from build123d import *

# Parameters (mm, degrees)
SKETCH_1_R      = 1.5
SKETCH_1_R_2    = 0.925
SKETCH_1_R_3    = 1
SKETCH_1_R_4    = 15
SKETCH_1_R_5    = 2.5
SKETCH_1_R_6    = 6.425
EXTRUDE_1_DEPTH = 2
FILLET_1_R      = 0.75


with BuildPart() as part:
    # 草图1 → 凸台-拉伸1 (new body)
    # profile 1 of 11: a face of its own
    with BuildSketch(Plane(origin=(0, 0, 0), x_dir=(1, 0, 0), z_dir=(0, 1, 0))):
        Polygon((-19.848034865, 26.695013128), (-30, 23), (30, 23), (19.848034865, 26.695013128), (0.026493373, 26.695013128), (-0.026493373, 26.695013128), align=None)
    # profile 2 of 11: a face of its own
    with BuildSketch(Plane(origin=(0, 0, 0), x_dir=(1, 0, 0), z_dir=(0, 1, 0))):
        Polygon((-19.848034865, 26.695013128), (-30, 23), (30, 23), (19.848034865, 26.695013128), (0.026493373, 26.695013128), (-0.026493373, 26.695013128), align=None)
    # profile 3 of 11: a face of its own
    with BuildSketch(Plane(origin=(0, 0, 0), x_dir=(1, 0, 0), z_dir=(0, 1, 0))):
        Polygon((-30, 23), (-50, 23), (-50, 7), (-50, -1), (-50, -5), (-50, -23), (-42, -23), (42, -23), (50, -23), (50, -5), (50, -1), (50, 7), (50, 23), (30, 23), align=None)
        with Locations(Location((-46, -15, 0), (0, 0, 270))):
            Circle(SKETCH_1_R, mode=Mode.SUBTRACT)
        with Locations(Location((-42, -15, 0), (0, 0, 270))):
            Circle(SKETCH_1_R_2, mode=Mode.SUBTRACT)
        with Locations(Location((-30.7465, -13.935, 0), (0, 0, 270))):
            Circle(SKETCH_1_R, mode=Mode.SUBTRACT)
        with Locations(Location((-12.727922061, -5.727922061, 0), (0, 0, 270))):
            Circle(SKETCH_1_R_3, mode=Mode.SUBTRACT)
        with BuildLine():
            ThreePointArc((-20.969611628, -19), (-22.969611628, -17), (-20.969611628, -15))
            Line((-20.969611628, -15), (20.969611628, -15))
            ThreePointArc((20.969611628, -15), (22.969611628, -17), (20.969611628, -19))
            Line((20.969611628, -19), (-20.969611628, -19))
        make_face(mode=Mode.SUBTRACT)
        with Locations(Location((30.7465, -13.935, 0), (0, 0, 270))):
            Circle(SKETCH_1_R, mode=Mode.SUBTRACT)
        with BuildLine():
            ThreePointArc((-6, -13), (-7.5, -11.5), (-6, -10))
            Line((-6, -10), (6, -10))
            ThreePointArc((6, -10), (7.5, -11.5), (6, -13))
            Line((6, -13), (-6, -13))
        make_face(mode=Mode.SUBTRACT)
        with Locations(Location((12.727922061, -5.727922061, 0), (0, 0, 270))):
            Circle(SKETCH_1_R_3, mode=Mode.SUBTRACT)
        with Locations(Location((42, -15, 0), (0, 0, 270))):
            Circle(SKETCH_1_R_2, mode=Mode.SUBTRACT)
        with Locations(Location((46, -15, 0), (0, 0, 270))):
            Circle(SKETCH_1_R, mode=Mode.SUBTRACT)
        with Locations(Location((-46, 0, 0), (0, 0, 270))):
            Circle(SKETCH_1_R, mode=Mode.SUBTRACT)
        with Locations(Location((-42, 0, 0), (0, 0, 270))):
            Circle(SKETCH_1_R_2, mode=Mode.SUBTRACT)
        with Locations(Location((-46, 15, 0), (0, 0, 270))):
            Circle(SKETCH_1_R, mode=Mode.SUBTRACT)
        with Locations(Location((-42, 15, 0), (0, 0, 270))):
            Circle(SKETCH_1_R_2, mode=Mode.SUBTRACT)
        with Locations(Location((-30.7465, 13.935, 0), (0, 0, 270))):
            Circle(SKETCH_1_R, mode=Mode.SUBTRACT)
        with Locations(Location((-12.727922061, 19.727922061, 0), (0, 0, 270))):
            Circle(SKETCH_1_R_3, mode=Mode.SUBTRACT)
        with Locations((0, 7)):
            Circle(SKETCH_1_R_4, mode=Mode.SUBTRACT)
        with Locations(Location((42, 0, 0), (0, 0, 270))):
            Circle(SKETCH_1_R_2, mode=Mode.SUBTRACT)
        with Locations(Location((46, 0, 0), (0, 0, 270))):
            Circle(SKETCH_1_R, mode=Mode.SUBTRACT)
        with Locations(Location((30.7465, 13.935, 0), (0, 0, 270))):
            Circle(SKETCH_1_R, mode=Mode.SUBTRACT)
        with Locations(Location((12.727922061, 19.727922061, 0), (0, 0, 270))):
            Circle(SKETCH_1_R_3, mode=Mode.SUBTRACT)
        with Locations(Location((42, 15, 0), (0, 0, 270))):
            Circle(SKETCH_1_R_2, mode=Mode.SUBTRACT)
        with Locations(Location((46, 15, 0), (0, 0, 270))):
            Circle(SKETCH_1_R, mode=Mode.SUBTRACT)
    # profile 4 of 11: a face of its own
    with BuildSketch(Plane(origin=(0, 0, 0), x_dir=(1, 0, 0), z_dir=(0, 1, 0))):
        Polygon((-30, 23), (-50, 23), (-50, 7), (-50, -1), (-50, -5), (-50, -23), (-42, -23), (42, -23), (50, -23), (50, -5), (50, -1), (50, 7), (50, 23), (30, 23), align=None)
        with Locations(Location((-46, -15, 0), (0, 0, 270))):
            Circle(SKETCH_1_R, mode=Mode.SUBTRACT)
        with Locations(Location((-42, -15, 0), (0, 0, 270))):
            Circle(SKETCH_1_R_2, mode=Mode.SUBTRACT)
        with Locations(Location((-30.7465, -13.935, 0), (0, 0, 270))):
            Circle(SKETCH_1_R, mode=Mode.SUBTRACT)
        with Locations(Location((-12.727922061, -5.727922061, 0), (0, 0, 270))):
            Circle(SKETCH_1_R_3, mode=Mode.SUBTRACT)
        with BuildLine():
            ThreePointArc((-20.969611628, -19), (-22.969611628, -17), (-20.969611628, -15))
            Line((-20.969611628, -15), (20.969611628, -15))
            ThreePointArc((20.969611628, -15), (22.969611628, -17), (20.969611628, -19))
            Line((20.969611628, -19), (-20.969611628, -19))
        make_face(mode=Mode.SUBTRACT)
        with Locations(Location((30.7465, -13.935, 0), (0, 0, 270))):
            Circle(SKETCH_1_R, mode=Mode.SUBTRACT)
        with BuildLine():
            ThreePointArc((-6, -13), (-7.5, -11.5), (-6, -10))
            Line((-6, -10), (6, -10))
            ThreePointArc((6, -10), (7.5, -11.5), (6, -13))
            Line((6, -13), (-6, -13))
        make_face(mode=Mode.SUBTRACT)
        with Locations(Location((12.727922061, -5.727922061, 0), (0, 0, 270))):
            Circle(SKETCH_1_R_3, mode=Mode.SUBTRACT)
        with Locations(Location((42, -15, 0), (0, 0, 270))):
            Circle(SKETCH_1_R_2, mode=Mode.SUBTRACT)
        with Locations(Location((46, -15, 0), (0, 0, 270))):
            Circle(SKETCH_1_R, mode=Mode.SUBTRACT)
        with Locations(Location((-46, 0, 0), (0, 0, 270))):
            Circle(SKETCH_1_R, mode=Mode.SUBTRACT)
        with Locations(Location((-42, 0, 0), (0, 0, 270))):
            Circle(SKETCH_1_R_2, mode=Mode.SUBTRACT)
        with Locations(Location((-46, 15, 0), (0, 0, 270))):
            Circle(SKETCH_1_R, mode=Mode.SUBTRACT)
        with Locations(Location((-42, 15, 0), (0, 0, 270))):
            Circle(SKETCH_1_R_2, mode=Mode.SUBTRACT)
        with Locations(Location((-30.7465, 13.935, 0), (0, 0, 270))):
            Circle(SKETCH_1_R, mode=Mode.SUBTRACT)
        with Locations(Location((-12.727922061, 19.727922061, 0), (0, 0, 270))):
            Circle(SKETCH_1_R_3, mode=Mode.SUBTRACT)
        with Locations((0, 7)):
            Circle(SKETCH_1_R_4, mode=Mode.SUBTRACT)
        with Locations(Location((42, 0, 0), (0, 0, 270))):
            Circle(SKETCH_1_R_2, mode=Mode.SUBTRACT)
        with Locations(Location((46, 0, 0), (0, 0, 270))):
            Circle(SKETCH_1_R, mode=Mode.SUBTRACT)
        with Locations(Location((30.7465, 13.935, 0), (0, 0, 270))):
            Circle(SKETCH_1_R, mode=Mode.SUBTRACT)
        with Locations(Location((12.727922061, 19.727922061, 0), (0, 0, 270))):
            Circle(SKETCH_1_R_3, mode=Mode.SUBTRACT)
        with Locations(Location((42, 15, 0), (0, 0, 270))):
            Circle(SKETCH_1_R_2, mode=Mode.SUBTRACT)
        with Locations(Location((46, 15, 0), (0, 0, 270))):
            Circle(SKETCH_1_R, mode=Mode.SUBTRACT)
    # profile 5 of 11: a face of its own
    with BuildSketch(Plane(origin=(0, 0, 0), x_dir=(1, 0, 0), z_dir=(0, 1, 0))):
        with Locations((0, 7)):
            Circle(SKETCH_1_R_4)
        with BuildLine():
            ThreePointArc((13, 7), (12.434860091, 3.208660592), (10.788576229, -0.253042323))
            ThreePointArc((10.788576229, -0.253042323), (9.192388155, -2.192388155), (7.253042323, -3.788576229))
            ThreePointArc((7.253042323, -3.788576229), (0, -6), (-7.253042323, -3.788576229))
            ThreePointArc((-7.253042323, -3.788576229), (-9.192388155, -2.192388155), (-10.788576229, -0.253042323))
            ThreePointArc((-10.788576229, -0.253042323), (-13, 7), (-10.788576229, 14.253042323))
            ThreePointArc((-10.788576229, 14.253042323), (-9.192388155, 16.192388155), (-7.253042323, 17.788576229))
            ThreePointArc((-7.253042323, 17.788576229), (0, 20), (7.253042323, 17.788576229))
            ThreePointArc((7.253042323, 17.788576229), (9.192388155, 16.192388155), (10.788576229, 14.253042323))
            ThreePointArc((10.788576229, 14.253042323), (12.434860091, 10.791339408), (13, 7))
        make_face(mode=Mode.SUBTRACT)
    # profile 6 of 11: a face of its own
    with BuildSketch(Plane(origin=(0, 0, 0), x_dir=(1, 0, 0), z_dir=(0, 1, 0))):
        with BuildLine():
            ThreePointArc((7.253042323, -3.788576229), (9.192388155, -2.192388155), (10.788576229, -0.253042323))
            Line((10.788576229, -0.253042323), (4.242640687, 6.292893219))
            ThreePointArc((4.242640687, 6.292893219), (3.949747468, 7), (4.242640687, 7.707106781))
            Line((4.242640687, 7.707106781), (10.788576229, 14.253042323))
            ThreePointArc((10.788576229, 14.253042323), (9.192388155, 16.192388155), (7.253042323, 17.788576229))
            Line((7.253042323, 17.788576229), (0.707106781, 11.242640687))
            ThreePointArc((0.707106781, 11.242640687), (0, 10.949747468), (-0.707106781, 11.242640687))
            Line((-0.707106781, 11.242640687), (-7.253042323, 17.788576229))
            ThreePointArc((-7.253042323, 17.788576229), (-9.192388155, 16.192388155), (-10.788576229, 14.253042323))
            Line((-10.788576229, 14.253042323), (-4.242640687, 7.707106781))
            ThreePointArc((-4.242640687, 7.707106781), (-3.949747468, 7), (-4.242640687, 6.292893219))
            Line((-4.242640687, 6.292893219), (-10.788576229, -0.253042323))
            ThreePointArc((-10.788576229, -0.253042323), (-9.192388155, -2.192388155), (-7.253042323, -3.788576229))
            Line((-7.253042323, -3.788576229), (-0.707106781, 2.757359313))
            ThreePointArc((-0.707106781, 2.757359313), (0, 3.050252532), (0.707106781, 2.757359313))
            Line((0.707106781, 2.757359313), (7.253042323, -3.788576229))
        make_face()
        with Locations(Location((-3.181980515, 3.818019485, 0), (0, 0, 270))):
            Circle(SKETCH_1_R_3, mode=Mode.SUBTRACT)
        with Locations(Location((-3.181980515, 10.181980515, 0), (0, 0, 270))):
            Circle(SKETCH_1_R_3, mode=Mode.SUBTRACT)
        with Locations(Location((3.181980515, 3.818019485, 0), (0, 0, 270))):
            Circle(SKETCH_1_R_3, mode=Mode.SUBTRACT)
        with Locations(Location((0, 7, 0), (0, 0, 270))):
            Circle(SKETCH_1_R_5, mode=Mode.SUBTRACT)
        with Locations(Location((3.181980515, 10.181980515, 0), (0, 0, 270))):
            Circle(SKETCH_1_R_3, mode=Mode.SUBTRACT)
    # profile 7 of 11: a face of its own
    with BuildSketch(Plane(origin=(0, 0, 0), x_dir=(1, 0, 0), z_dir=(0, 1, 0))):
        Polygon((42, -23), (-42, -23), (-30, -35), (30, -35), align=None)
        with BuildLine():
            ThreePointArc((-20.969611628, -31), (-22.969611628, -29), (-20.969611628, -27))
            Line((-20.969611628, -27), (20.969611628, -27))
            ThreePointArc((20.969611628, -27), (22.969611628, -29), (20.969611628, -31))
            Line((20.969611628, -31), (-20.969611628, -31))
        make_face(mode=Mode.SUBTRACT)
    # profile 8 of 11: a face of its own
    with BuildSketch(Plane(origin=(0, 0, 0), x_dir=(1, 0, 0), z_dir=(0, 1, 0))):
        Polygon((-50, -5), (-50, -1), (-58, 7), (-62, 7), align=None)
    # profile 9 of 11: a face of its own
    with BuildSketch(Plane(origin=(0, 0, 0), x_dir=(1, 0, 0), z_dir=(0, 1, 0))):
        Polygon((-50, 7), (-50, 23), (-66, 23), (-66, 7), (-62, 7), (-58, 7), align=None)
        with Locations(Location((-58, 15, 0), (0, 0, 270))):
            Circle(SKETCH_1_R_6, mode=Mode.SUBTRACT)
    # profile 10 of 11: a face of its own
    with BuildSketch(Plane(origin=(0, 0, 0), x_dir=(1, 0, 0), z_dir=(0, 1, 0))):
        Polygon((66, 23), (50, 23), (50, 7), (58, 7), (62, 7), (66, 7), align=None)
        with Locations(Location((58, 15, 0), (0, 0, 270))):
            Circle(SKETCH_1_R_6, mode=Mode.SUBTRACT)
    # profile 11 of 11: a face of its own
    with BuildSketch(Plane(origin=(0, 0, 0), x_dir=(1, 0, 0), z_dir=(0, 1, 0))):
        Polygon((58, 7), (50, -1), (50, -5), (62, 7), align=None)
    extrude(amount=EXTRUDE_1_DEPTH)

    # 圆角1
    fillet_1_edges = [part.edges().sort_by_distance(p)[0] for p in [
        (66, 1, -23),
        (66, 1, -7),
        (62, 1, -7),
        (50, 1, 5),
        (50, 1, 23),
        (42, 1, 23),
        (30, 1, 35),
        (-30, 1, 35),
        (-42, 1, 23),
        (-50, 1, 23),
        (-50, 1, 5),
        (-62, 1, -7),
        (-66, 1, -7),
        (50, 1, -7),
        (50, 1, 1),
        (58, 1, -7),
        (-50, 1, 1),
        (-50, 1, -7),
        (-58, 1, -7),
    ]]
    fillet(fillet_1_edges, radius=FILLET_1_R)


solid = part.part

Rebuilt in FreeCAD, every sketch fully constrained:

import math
import FreeCAD as App
import Part
import Sketcher

V = App.Vector
Q = App.Units.Quantity


def edges_at(feature, points):
    """Names of the edges that pass closest to the given points."""
    edges = feature.Shape.Edges
    near = lambda p: min(range(len(edges)), key=lambda i: edges[i].distToShape(Part.Vertex(*p))[0])
    return sorted({f"Edge{near(p) + 1}" for p in points})

doc = App.newDocument("Part")
body = doc.addObject("PartDesign::Body", "Body")

sketch1 = body.newObject("Sketcher::SketchObject", "Sketch")
sketch1.AttachmentSupport = (doc.getObject("XZ_Plane"), [""])
sketch1.MapMode = "FlatFace"
sketch1.addGeometry(Part.LineSegment(V(-19.8, -26.7, 0), V(-30, -23, 0)), False)
sketch1.addGeometry(Part.LineSegment(V(-30, -23, 0), V(-66, -23, 0)), False)
sketch1.addGeometry(Part.LineSegment(V(-66, -23, 0), V(-66, -7, 0)), False)
sketch1.addGeometry(Part.LineSegment(V(-66, -7, 0), V(-62, -7, 0)), False)
sketch1.addGeometry(Part.LineSegment(V(-62, -7, 0), V(-50, 5, 0)), False)
sketch1.addGeometry(Part.LineSegment(V(-50, 5, 0), V(-50, 23, 0)), False)
sketch1.addGeometry(Part.LineSegment(V(-50, 23, 0), V(-42, 23, 0)), False)
sketch1.addGeometry(Part.LineSegment(V(-42, 23, 0), V(-30, 35, 0)), False)
sketch1.addGeometry(Part.LineSegment(V(-30, 35, 0), V(30, 35, 0)), False)
sketch1.addGeometry(Part.LineSegment(V(30, 35, 0), V(42, 23, 0)), False)
sketch1.addGeometry(Part.LineSegment(V(42, 23, 0), V(50, 23, 0)), False)
sketch1.addGeometry(Part.LineSegment(V(50, 23, 0), V(50, 5, 0)), False)
sketch1.addGeometry(Part.LineSegment(V(50, 5, 0), V(62, -7, 0)), False)
sketch1.addGeometry(Part.LineSegment(V(62, -7, 0), V(66, -7, 0)), False)
sketch1.addGeometry(Part.LineSegment(V(66, -7, 0), V(66, -23, 0)), False)
sketch1.addGeometry(Part.LineSegment(V(66, -23, 0), V(30, -23, 0)), False)
sketch1.addGeometry(Part.LineSegment(V(30, -23, 0), V(19.8, -26.7, 0)), False)
sketch1.addGeometry(Part.LineSegment(V(19.8, -26.7, 0), V(-19.8, -26.7, 0)), False)
sketch1.addGeometry(Part.LineSegment(V(-50, -7, 0), V(-50, 1, 0)), False)
sketch1.addGeometry(Part.LineSegment(V(-50, 1, 0), V(-58, -7, 0)), False)
sketch1.addGeometry(Part.LineSegment(V(-58, -7, 0), V(-50, -7, 0)), False)
sketch1.addGeometry(Part.Circle(V(46, -15, 0), V(0, 0, 1), 1.5), False)
sketch1.addGeometry(Part.LineSegment(V(50, 1, 0), V(50, -7, 0)), False)
sketch1.addGeometry(Part.LineSegment(V(50, -7, 0), V(58, -7, 0)), False)
sketch1.addGeometry(Part.LineSegment(V(58, -7, 0), V(50, 1, 0)), False)
sketch1.addGeometry(Part.Circle(V(-46, 15, 0), V(0, 0, 1), 1.5), False)
sketch1.addGeometry(Part.Circle(V(-42, 15, 0), V(0, 0, 1), 0.9), False)
sketch1.addGeometry(Part.Circle(V(-30.7, 13.9, 0), V(0, 0, 1), 1.5), False)
sketch1.addGeometry(Part.Circle(V(-46, 0, 0), V(0, 0, 1), 1.5), False)
sketch1.addGeometry(Part.Circle(V(-42, 0, 0), V(0, 0, 1), 0.9), False)
sketch1.addGeometry(Part.Circle(V(-12.7, 5.7, 0), V(0, 0, 1), 1), False)
sketch1.addGeometry(Part.LineSegment(V(21, 19, 0), V(-21, 19, 0)), False)
sketch1.addGeometry(Part.ArcOfCircle(Part.Circle(V(-21, 17, 0), V(0, 0, 1), 2), math.radians(90), math.radians(270)), False)
sketch1.addGeometry(Part.LineSegment(V(-21, 15, 0), V(21, 15, 0)), False)
sketch1.addGeometry(Part.ArcOfCircle(Part.Circle(V(21, 17, 0), V(0, 0, 1), 2), math.radians(-90), math.radians(90)), False)
sketch1.addGeometry(Part.LineSegment(V(6, 13, 0), V(-6, 13, 0)), False)
sketch1.addGeometry(Part.ArcOfCircle(Part.Circle(V(-6, 11.5, 0), V(0, 0, 1), 1.5), math.radians(90), math.radians(270)), False)
sketch1.addGeometry(Part.LineSegment(V(-6, 10, 0), V(6, 10, 0)), False)
sketch1.addGeometry(Part.ArcOfCircle(Part.Circle(V(6, 11.5, 0), V(0, 0, 1), 1.5), math.radians(-90), math.radians(90)), False)
sketch1.addGeometry(Part.Circle(V(30.7, 13.9, 0), V(0, 0, 1), 1.5), False)
sketch1.addGeometry(Part.Circle(V(42, 15, 0), V(0, 0, 1), 0.9), False)
sketch1.addGeometry(Part.Circle(V(46, 15, 0), V(0, 0, 1), 1.5), False)
sketch1.addGeometry(Part.Circle(V(12.7, 5.7, 0), V(0, 0, 1), 1), False)
sketch1.addGeometry(Part.Circle(V(42, 0, 0), V(0, 0, 1), 0.9), False)
sketch1.addGeometry(Part.Circle(V(46, 0, 0), V(0, 0, 1), 1.5), False)
sketch1.addGeometry(Part.Circle(V(-46, -15, 0), V(0, 0, 1), 1.5), False)
sketch1.addGeometry(Part.Circle(V(-42, -15, 0), V(0, 0, 1), 0.9), False)
sketch1.addGeometry(Part.Circle(V(-30.7, -13.9, 0), V(0, 0, 1), 1.5), False)
sketch1.addGeometry(Part.Circle(V(-12.7, -19.7, 0), V(0, 0, 1), 1), False)
sketch1.addGeometry(Part.Circle(V(12.7, -19.7, 0), V(0, 0, 1), 1), False)
sketch1.addGeometry(Part.Circle(V(30.7, -13.9, 0), V(0, 0, 1), 1.5), False)
sketch1.addGeometry(Part.Circle(V(42, -15, 0), V(0, 0, 1), 0.9), False)
sketch1.addGeometry(Part.Circle(V(-58, -15, 0), V(0, 0, 1), 6.4), False)
sketch1.addGeometry(Part.ArcOfCircle(Part.Circle(V(-21, 29, 0), V(0, 0, 1), 2), math.radians(90), math.radians(270)), False)
sketch1.addGeometry(Part.LineSegment(V(-21, 27, 0), V(21, 27, 0)), False)
sketch1.addGeometry(Part.ArcOfCircle(Part.Circle(V(21, 29, 0), V(0, 0, 1), 2), math.radians(-90), math.radians(90)), False)
sketch1.addGeometry(Part.LineSegment(V(21, 31, 0), V(-21, 31, 0)), False)
sketch1.addGeometry(Part.Circle(V(58, -15, 0), V(0, 0, 1), 6.4), False)
sketch1.addGeometry(Part.ArcOfCircle(Part.Circle(V(0, -7, 0), V(0, 0, 1), 13), math.radians(0), math.radians(34)), False)
sketch1.addGeometry(Part.LineSegment(V(10.8, 0.3, 0), V(4.2, -6.3, 0)), False)
sketch1.addGeometry(Part.ArcOfCircle(Part.Circle(V(4.9, -7, 0), V(0, 0, 1), 1), math.radians(135), math.radians(225)), False)
sketch1.addGeometry(Part.LineSegment(V(4.2, -7.7, 0), V(10.8, -14.3, 0)), False)
sketch1.addGeometry(Part.ArcOfCircle(Part.Circle(V(0, -7, 0), V(0, 0, 1), 13), math.radians(-34), math.radians(0)), False)
sketch1.addGeometry(Part.ArcOfCircle(Part.Circle(V(0, -7, 0), V(0, 0, 1), 13), math.radians(-124), math.radians(-56)), False)
sketch1.addGeometry(Part.LineSegment(V(7.3, -17.8, 0), V(0.7, -11.2, 0)), False)
sketch1.addGeometry(Part.ArcOfCircle(Part.Circle(V(0, -11.9, 0), V(0, 0, 1), 1), math.radians(45), math.radians(135)), False)
sketch1.addGeometry(Part.LineSegment(V(-0.7, -11.2, 0), V(-7.3, -17.8, 0)), False)
sketch1.addGeometry(Part.ArcOfCircle(Part.Circle(V(0, -7, 0), V(0, 0, 1), 13), math.radians(146), math.radians(214)), False)
sketch1.addGeometry(Part.LineSegment(V(-10.8, -14.3, 0), V(-4.2, -7.7, 0)), False)
sketch1.addGeometry(Part.ArcOfCircle(Part.Circle(V(-4.9, -7, 0), V(0, 0, 1), 1), math.radians(-45), math.radians(45)), False)
sketch1.addGeometry(Part.LineSegment(V(-4.2, -6.3, 0), V(-10.8, 0.3, 0)), False)
sketch1.addGeometry(Part.ArcOfCircle(Part.Circle(V(0, -7, 0), V(0, 0, 1), 13), math.radians(56), math.radians(124)), False)
sketch1.addGeometry(Part.LineSegment(V(-7.3, 3.8, 0), V(-0.7, -2.8, 0)), False)
sketch1.addGeometry(Part.ArcOfCircle(Part.Circle(V(0, -2.1, 0), V(0, 0, 1), 1), math.radians(-135), math.radians(-45)), False)
sketch1.addGeometry(Part.LineSegment(V(0.7, -2.8, 0), V(7.3, 3.8, 0)), False)
sketch1.addGeometry(Part.Circle(V(3.2, -3.8, 0), V(0, 0, 1), 1), False)
sketch1.addGeometry(Part.Circle(V(-3.2, -10.2, 0), V(0, 0, 1), 1), False)
sketch1.addGeometry(Part.Circle(V(3.2, -10.2, 0), V(0, 0, 1), 1), False)
sketch1.addGeometry(Part.Circle(V(0, -7, 0), V(0, 0, 1), 2.5), False)
sketch1.addGeometry(Part.Circle(V(-3.2, -3.8, 0), V(0, 0, 1), 1), False)
sketch1.addConstraint(Sketcher.Constraint("Coincident", 0, 2, 1, 1))
sketch1.addConstraint(Sketcher.Constraint("Coincident", 1, 2, 2, 1))
sketch1.addConstraint(Sketcher.Constraint("Coincident", 2, 2, 3, 1))
sketch1.addConstraint(Sketcher.Constraint("Coincident", 3, 2, 4, 1))
sketch1.addConstraint(Sketcher.Constraint("Coincident", 4, 2, 5, 1))
sketch1.addConstraint(Sketcher.Constraint("Coincident", 5, 2, 6, 1))
sketch1.addConstraint(Sketcher.Constraint("Coincident", 6, 2, 7, 1))
sketch1.addConstraint(Sketcher.Constraint("Coincident", 7, 2, 8, 1))
sketch1.addConstraint(Sketcher.Constraint("Coincident", 8, 2, 9, 1))
sketch1.addConstraint(Sketcher.Constraint("Coincident", 9, 2, 10, 1))
sketch1.addConstraint(Sketcher.Constraint("Coincident", 10, 2, 11, 1))
sketch1.addConstraint(Sketcher.Constraint("Coincident", 11, 2, 12, 1))
sketch1.addConstraint(Sketcher.Constraint("Coincident", 12, 2, 13, 1))
sketch1.addConstraint(Sketcher.Constraint("Coincident", 13, 2, 14, 1))
sketch1.addConstraint(Sketcher.Constraint("Coincident", 14, 2, 15, 1))
sketch1.addConstraint(Sketcher.Constraint("Coincident", 15, 2, 16, 1))
sketch1.addConstraint(Sketcher.Constraint("Coincident", 16, 2, 17, 1))
sketch1.addConstraint(Sketcher.Constraint("Coincident", 17, 2, 0, 1))
sketch1.addConstraint(Sketcher.Constraint("Coincident", 18, 2, 19, 1))
sketch1.addConstraint(Sketcher.Constraint("Coincident", 19, 2, 20, 1))
sketch1.addConstraint(Sketcher.Constraint("Coincident", 20, 2, 18, 1))
sketch1.addConstraint(Sketcher.Constraint("Coincident", 22, 2, 23, 1))
sketch1.addConstraint(Sketcher.Constraint("Coincident", 23, 2, 24, 1))
sketch1.addConstraint(Sketcher.Constraint("Coincident", 24, 2, 22, 1))
sketch1.addConstraint(Sketcher.Constraint("Tangent", 31, 2, 32, 1))
sketch1.addConstraint(Sketcher.Constraint("Tangent", 32, 2, 33, 1))
sketch1.addConstraint(Sketcher.Constraint("Tangent", 33, 2, 34, 1))
sketch1.addConstraint(Sketcher.Constraint("Tangent", 34, 2, 31, 1))
sketch1.addConstraint(Sketcher.Constraint("Tangent", 35, 2, 36, 1))
sketch1.addConstraint(Sketcher.Constraint("Tangent", 36, 2, 37, 1))
sketch1.addConstraint(Sketcher.Constraint("Tangent", 37, 2, 38, 1))
sketch1.addConstraint(Sketcher.Constraint("Tangent", 38, 2, 35, 1))
sketch1.addConstraint(Sketcher.Constraint("Tangent", 53, 2, 54, 1))
sketch1.addConstraint(Sketcher.Constraint("Tangent", 54, 2, 55, 1))
sketch1.addConstraint(Sketcher.Constraint("Tangent", 55, 2, 56, 1))
sketch1.addConstraint(Sketcher.Constraint("Tangent", 56, 2, 53, 1))
sketch1.addConstraint(Sketcher.Constraint("Coincident", 58, 2, 59, 1))
sketch1.addConstraint(Sketcher.Constraint("Tangent", 59, 2, 60, 1))
sketch1.addConstraint(Sketcher.Constraint("Tangent", 60, 2, 61, 1))
sketch1.addConstraint(Sketcher.Constraint("Coincident", 61, 2, 62, 1))
sketch1.addConstraint(Sketcher.Constraint("Tangent", 62, 2, 58, 1))
sketch1.addConstraint(Sketcher.Constraint("Coincident", 63, 2, 64, 1))
sketch1.addConstraint(Sketcher.Constraint("Tangent", 64, 2, 65, 1))
sketch1.addConstraint(Sketcher.Constraint("Tangent", 65, 2, 66, 1))
sketch1.addConstraint(Sketcher.Constraint("Coincident", 66, 2, 63, 1))
sketch1.addConstraint(Sketcher.Constraint("Coincident", 67, 2, 68, 1))
sketch1.addConstraint(Sketcher.Constraint("Tangent", 68, 2, 69, 1))
sketch1.addConstraint(Sketcher.Constraint("Tangent", 69, 2, 70, 1))
sketch1.addConstraint(Sketcher.Constraint("Coincident", 70, 2, 67, 1))
sketch1.addConstraint(Sketcher.Constraint("Coincident", 71, 2, 72, 1))
sketch1.addConstraint(Sketcher.Constraint("Tangent", 72, 2, 73, 1))
sketch1.addConstraint(Sketcher.Constraint("Tangent", 73, 2, 74, 1))
sketch1.addConstraint(Sketcher.Constraint("Coincident", 74, 2, 71, 1))
sketch1.addConstraint(Sketcher.Constraint("Horizontal", 1))
sketch1.addConstraint(Sketcher.Constraint("Vertical", 2))
sketch1.addConstraint(Sketcher.Constraint("Horizontal", 3))
sketch1.addConstraint(Sketcher.Constraint("Vertical", 5))
sketch1.addConstraint(Sketcher.Constraint("Horizontal", 6))
sketch1.addConstraint(Sketcher.Constraint("Horizontal", 8))
sketch1.addConstraint(Sketcher.Constraint("Horizontal", 10))
sketch1.addConstraint(Sketcher.Constraint("Vertical", 11))
sketch1.addConstraint(Sketcher.Constraint("Horizontal", 13))
sketch1.addConstraint(Sketcher.Constraint("Vertical", 14))
sketch1.addConstraint(Sketcher.Constraint("Horizontal", 15))
sketch1.addConstraint(Sketcher.Constraint("Horizontal", 17))
sketch1.addConstraint(Sketcher.Constraint("Vertical", 18))
sketch1.addConstraint(Sketcher.Constraint("Horizontal", 20))
sketch1.addConstraint(Sketcher.Constraint("Vertical", 22))
sketch1.addConstraint(Sketcher.Constraint("Horizontal", 23))
sketch1.addConstraint(Sketcher.Constraint("Horizontal", 31))
sketch1.addConstraint(Sketcher.Constraint("Horizontal", 33))
sketch1.addConstraint(Sketcher.Constraint("Horizontal", 35))
sketch1.addConstraint(Sketcher.Constraint("Horizontal", 37))
sketch1.addConstraint(Sketcher.Constraint("Horizontal", 54))
sketch1.addConstraint(Sketcher.Constraint("Horizontal", 56))
sketch1.addConstraint(Sketcher.Constraint("Coincident", 63, 3, 58, 3))
sketch1.addConstraint(Sketcher.Constraint("Coincident", 67, 3, 58, 3))
sketch1.addConstraint(Sketcher.Constraint("Coincident", 71, 3, 58, 3))
sketch1.addConstraint(Sketcher.Constraint("Coincident", 78, 3, 58, 3))
sketch1.addConstraint(Sketcher.Constraint("Equal", 21, 25))
sketch1.addConstraint(Sketcher.Constraint("Equal", 25, 27))
sketch1.addConstraint(Sketcher.Constraint("Equal", 27, 28))
sketch1.addConstraint(Sketcher.Constraint("Equal", 26, 29))
sketch1.addConstraint(Sketcher.Constraint("Equal", 28, 36))
sketch1.addConstraint(Sketcher.Constraint("Equal", 38, 39))
sketch1.addConstraint(Sketcher.Constraint("Equal", 29, 40))
sketch1.addConstraint(Sketcher.Constraint("Equal", 39, 41))
sketch1.addConstraint(Sketcher.Constraint("Equal", 30, 42))
sketch1.addConstraint(Sketcher.Constraint("Equal", 40, 43))
sketch1.addConstraint(Sketcher.Constraint("Equal", 41, 44))
sketch1.addConstraint(Sketcher.Constraint("Equal", 44, 45))
sketch1.addConstraint(Sketcher.Constraint("Equal", 43, 46))
sketch1.addConstraint(Sketcher.Constraint("Equal", 45, 47))
sketch1.addConstraint(Sketcher.Constraint("Equal", 42, 48))
sketch1.addConstraint(Sketcher.Constraint("Equal", 48, 49))
sketch1.addConstraint(Sketcher.Constraint("Equal", 47, 50))
sketch1.addConstraint(Sketcher.Constraint("Equal", 46, 51))
sketch1.addConstraint(Sketcher.Constraint("Equal", 34, 53))
sketch1.addConstraint(Sketcher.Constraint("Equal", 52, 57))
sketch1.addConstraint(Sketcher.Constraint("Equal", 49, 60))
sketch1.addConstraint(Sketcher.Constraint("Equal", 58, 62))
sketch1.addConstraint(Sketcher.Constraint("Equal", 62, 63))
sketch1.addConstraint(Sketcher.Constraint("Equal", 60, 65))
sketch1.addConstraint(Sketcher.Constraint("Equal", 63, 67))
sketch1.addConstraint(Sketcher.Constraint("Equal", 65, 69))
sketch1.addConstraint(Sketcher.Constraint("Equal", 67, 71))
sketch1.addConstraint(Sketcher.Constraint("Equal", 69, 73))
sketch1.addConstraint(Sketcher.Constraint("Equal", 73, 75))
sketch1.addConstraint(Sketcher.Constraint("Equal", 75, 76))
sketch1.addConstraint(Sketcher.Constraint("Equal", 76, 77))
sketch1.addConstraint(Sketcher.Constraint("Equal", 77, 79))
sketch1.addConstraint(Sketcher.Constraint("Symmetric", 21, 3, 25, 3, -1, 1))
sketch1.addConstraint(Sketcher.Constraint("Symmetric", 29, 3, 43, 3, -1, 1))
sketch1.addConstraint(Sketcher.Constraint("Symmetric", 28, 3, 44, 3, -1, 1))
sketch1.addConstraint(Sketcher.Constraint("Symmetric", 41, 3, 45, 3, -1, 1))
sketch1.addConstraint(Sketcher.Constraint("Symmetric", 40, 3, 46, 3, -1, 1))
sketch1.addConstraint(Sketcher.Constraint("Symmetric", 39, 3, 47, 3, -1, 1))
sketch1.addConstraint(Sketcher.Constraint("Symmetric", 27, 3, 50, 3, -1, 1))
sketch1.addConstraint(Sketcher.Constraint("Symmetric", 26, 3, 51, 3, -1, 1))
sketch1.addConstraint(Sketcher.Constraint("Symmetric", 27, 3, 39, 3, -2))
sketch1.addConstraint(Sketcher.Constraint("Symmetric", 26, 3, 40, 3, -2))
sketch1.addConstraint(Sketcher.Constraint("Symmetric", 25, 3, 41, 3, -2))
sketch1.addConstraint(Sketcher.Constraint("Symmetric", 30, 3, 42, 3, -2))
sketch1.addConstraint(Sketcher.Constraint("Symmetric", 48, 3, 49, 3, -2))
sketch1.addConstraint(Sketcher.Constraint("Symmetric", 52, 3, 57, 3, -2))
sketch1.addConstraint(Sketcher.Constraint("Symmetric", 60, 3, 69, 3, -2))
sketch1.addConstraint(Sketcher.Constraint("Symmetric", 76, 3, 77, 3, -2))
sketch1.addConstraint(Sketcher.Constraint("Symmetric", 75, 3, 79, 3, -2))
sketch1.addConstraint(Sketcher.Constraint("Symmetric", 6, 2, 9, 2, -2))
sketch1.addConstraint(Sketcher.Constraint("Symmetric", 4, 2, 11, 2, -2))
sketch1.addConstraint(Sketcher.Constraint("Symmetric", 3, 2, 12, 2, -2))
sketch1.addConstraint(Sketcher.Constraint("Symmetric", 1, 2, 14, 2, -2))
sketch1.addConstraint(Sketcher.Constraint("Symmetric", 20, 2, 22, 2, -2))
sketch1.addConstraint(Sketcher.Constraint("Symmetric", 64, 2, 65, 2, -2))
sketch1.addConstraint(Sketcher.Constraint("Symmetric", 61, 2, 67, 2, -2))
sketch1.addConstraint(Sketcher.Constraint("Symmetric", 72, 2, 73, 2, -2))
sketch1.addConstraint(Sketcher.Constraint("PointOnObject", 28, 3, -1))
sketch1.addConstraint(Sketcher.Constraint("PointOnObject", 29, 3, -1))
sketch1.addConstraint(Sketcher.Constraint("Parallel", 4, 7))
sketch1.addConstraint(Sketcher.Constraint("Perpendicular", 7, 9))
sketch1.addConstraint(Sketcher.Constraint("Parallel", 9, 12))
sketch1.addConstraint(Sketcher.Constraint("Perpendicular", 12, 19))
sketch1.addConstraint(Sketcher.Constraint("Perpendicular", 19, 24))
sketch1.addConstraint(Sketcher.Constraint("Perpendicular", 24, 59))
sketch1.addConstraint(Sketcher.Constraint("Perpendicular", 59, 61))
sketch1.addConstraint(Sketcher.Constraint("Parallel", 61, 64))
sketch1.addConstraint(Sketcher.Constraint("Perpendicular", 68, 70))
sketch1.addConstraint(Sketcher.Constraint("Parallel", 70, 72))
sketch1.addConstraint(Sketcher.Constraint("Horizontal", 25, 3, 26, 3))
sketch1.addConstraint(Sketcher.Constraint("Horizontal", 51, 3, 52, 3))
sketch1.addConstraint(Sketcher.Constraint("Horizontal", 58, 3, 60, 3))
sketch1.addConstraint(Sketcher.Constraint("Horizontal", 78, 3, 2, 2))
sketch1.addConstraint(Sketcher.Constraint("Horizontal", 13, 2, 19, 2))
sketch1.addConstraint(Sketcher.Constraint("Horizontal", 18, 2, 24, 2))
sketch1.addConstraint(Sketcher.Constraint("Horizontal", 41, 3, 32, 2))
sketch1.addConstraint(Sketcher.Constraint("Horizontal", 23, 2, 62, 2))
sketch1.addConstraint(Sketcher.Constraint("Vertical", 25, 3, 28, 3))
sketch1.addConstraint(Sketcher.Constraint("Vertical", 26, 3, 29, 3))
sketch1.addConstraint(Sketcher.Constraint("Vertical", 30, 3, 48, 3))
sketch1.addConstraint(Sketcher.Constraint("Vertical", 32, 3, 53, 3))
sketch1.addConstraint(Sketcher.Constraint("Vertical", 34, 3, 55, 3))
sketch1.addConstraint(Sketcher.Constraint("Vertical", 75, 3, 77, 3))
sketch1.addConstraint(Sketcher.Constraint("Vertical", 46, 3, 6, 2))
sketch1.addConstraint(Sketcher.Constraint("Vertical", 0, 2, 7, 2))
sketch1.addConstraint(Sketcher.Constraint("Vertical", 8, 2, 15, 2))
sketch1.addConstraint(Sketcher.Constraint("Vertical", 5, 2, 18, 2))
sketch1.addConstraint(Sketcher.Constraint("Vertical", 52, 3, 19, 2))
sketch1.addConstraint(Sketcher.Constraint("Vertical", 66, 2, 71, 2))
sketch1.addConstraint(Sketcher.Constraint("Equal", 10, 20))
sketch1.addConstraint(Sketcher.Constraint("Equal", 4, 7))
sketch1.addConstraint(Sketcher.Constraint("Equal", 0, 16))
sketch1.addConstraint(Sketcher.Constraint("Equal", 61, 64))
sketch1.addConstraint(Sketcher.Constraint("Diameter", 21, Q("3 mm")))
sketch1.addConstraint(Sketcher.Constraint("Diameter", 30, Q("2 mm")))
sketch1.addConstraint(Sketcher.Constraint("Diameter", 78, Q("5 mm")))
sketch1.addConstraint(Sketcher.Constraint("Radius", 32, Q("2 mm")))
sketch1.addConstraint(Sketcher.Constraint("Radius", 58, Q("13 mm")))
sketch1.addConstraint(Sketcher.Constraint("Diameter", 26, Q("1.85 mm")))
sketch1.addConstraint(Sketcher.Constraint("Diameter", 52, Q("12.85 mm")))
sketch1.addConstraint(Sketcher.Constraint("DistanceX", 1, 2, 1, 1, Q("36 mm")))
sketch1.addConstraint(Sketcher.Constraint("DistanceX", 3, 1, 3, 2, Q("4 mm")))
sketch1.addConstraint(Sketcher.Constraint("DistanceX", 6, 1, 6, 2, Q("8 mm")))
sketch1.addConstraint(Sketcher.Constraint("DistanceX", 8, 1, 8, 2, Q("60 mm")))
sketch1.addConstraint(Sketcher.Constraint("DistanceX", 35, 2, 35, 1, Q("12 mm")))
sketch1.addConstraint(Sketcher.Constraint("DistanceY", 2, 1, 2, 2, Q("16 mm")))
sketch1.addConstraint(Sketcher.Constraint("DistanceY", 5, 1, 5, 2, Q("18 mm")))
sketch1.addConstraint(Sketcher.Constraint("Angle", 0, Q("160 deg")))
sketch1.addConstraint(Sketcher.Constraint("DistanceX", -1, 1, 21, 3, Q("46 mm")))
sketch1.addConstraint(Sketcher.Constraint("DistanceY", 21, 3, -1, 1, Q("15 mm")))
sketch1.addConstraint(Sketcher.Constraint("DistanceX", 36, 3, -1, 1, Q("6 mm")))
sketch1.addConstraint(Sketcher.Constraint("DistanceY", -1, 1, 53, 3, Q("29 mm")))
sketch1.addConstraint(Sketcher.Constraint("DistanceY", 58, 3, -1, 1, Q("7 mm")))
sketch1.addConstraint(Sketcher.Constraint("DistanceY", -1, 1, 35, 2, Q("13 mm")))
sketch1.addConstraint(Sketcher.Constraint("DistanceY", -1, 1, 27, 3, Q("13.935 mm")))
sketch1.addConstraint(Sketcher.Constraint("DistanceX", 17, 2, 17, 1, Q("39.69607 mm")))
sketch1.addConstraint(Sketcher.Constraint("DistanceX", 27, 3, -1, 1, Q("30.7465 mm")))
sketch1.addConstraint(Sketcher.Constraint("Distance", 59, Q("9.257351 mm")))
sketch1.addConstraint(Sketcher.Constraint("DistanceX", 31, 2, 31, 1, Q("41.939223 mm")))
sketch1.addConstraint(Sketcher.Constraint("DistanceX", 32, 3, -1, 1, Q("20.969612 mm")))
sketch1.addConstraint(Sketcher.Constraint("DistanceX", -1, 1, 75, 3, Q("3.181981 mm")))
sketch1.addConstraint(Sketcher.Constraint("DistanceY", 75, 3, -1, 1, Q("3.818019 mm")))
sketch1.addConstraint(Sketcher.Constraint("DistanceY", 76, 3, -1, 1, Q("10.181981 mm")))
sketch1.addConstraint(Sketcher.Constraint("DistanceX", 30, 3, -1, 1, Q("12.727922 mm")))
sketch1.addConstraint(Sketcher.Constraint("DistanceY", -1, 1, 30, 3, Q("5.727922 mm")))
sketch1.addConstraint(Sketcher.Constraint("DistanceY", 48, 3, -1, 1, Q("19.727922 mm")))
pad1 = body.newObject("PartDesign::Pad", "Pad")
pad1.Profile = sketch1
pad1.Length = 2
pad1.Reversed = True
doc.recompute()

fillet = body.newObject("PartDesign::Fillet", "Fillet")
fillet.Base = (pad1, edges_at(pad1, [
    (66, 1, -23),
    (66, 1, -7),
    (62, 1, -7),
    (50, 1, 5),
    (50, 1, 23),
    (42, 1, 23),
    (30, 1, 35),
    (-30, 1, 35),
    (-42, 1, 23),
    (-50, 1, 23),
    (-50, 1, 5),
    (-62, 1, -7),
    (-66, 1, -7),
    (50, 1, -7),
    (50, 1, 1),
    (58, 1, -7),
    (-50, 1, 1),
    (-50, 1, -7),
    (-58, 1, -7),
]))
fillet.Radius = 0.75

doc.recompute()
